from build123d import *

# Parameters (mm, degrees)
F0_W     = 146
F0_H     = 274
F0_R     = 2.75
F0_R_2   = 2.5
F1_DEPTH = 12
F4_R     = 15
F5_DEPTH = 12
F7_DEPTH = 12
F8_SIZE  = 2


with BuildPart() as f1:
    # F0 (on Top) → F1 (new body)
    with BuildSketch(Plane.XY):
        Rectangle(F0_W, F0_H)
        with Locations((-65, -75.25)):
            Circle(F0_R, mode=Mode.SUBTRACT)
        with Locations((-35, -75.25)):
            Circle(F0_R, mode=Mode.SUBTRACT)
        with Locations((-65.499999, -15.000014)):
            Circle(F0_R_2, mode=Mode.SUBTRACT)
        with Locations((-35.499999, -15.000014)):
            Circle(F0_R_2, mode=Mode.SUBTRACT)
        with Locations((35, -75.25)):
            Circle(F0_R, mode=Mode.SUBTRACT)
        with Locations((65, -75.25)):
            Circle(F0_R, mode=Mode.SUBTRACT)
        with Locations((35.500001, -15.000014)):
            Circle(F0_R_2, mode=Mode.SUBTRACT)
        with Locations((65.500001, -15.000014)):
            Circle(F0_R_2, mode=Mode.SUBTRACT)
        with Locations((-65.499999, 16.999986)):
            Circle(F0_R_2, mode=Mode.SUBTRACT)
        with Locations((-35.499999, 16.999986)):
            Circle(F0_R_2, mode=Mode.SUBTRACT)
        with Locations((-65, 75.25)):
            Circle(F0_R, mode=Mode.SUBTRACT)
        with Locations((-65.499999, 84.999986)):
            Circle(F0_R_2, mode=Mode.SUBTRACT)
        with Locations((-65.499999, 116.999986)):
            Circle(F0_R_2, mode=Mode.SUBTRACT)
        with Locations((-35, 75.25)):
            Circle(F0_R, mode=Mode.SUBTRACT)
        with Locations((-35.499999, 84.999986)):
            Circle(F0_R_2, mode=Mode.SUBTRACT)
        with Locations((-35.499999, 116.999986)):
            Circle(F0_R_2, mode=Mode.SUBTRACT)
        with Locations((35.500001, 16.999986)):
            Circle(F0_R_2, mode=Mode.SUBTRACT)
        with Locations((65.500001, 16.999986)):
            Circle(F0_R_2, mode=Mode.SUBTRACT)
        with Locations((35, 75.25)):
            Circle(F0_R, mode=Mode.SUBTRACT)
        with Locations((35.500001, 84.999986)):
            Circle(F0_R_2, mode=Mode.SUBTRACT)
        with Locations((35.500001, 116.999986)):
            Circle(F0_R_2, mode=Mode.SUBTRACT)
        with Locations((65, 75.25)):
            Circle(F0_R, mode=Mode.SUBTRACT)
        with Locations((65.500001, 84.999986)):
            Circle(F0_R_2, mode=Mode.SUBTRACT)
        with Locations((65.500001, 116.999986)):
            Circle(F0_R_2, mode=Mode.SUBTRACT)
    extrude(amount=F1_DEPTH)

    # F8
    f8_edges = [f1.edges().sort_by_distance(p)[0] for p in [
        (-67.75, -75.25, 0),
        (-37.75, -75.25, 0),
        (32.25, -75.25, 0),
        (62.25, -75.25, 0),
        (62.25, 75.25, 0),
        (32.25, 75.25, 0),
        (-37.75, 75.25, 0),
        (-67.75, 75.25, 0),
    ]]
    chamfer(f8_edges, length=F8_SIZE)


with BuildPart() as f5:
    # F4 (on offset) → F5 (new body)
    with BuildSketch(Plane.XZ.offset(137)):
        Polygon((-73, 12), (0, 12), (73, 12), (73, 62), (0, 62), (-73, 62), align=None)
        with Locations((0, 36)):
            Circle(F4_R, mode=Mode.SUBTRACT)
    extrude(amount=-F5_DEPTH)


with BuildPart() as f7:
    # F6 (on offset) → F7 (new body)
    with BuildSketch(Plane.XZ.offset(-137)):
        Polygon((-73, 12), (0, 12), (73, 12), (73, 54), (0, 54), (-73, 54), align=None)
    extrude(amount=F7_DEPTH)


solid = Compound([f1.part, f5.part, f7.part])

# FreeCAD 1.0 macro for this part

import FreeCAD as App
import Part
import Sketcher
from FreeCAD import Vector


def edges_at(feature, points):
    """Names of the edges that pass closest to the given points."""
    edges = feature.Shape.Edges
    near = lambda p: min(range(len(edges)), key=lambda i: edges[i].distToShape(Part.Vertex(*p))[0])
    return sorted({f"Edge{near(p) + 1}" for p in points})

doc = App.newDocument("Part")
params = doc.addObject("Spreadsheet::Sheet", "Params")
for row, (alias, value) in enumerate([
    ("sketch1_diameter", "5 mm"),
    ("sketch1_diameter2", "5.5 mm"),
    ("sketch1_width", "146 mm"),
    ("sketch1_height", "274 mm"),
    ("pad1_length", "12 mm"),
    ("chamfer_size", "2 mm"),
    ("sketch2_diameter", "30 mm"),
    ("sketch2_width", "146 mm"),
    ("sketch2_height", "50 mm"),
    ("pad2_length", "12 mm"),
    ("sketch3_width", "146 mm"),
    ("sketch3_height", "42 mm"),
    ("pad3_length", "12 mm"),
], start=1):
    params.set(f"A{row}", alias)
    params.set(f"B{row}", "=" + value)
    params.setAlias(f"B{row}", alias)

body = doc.addObject("PartDesign::Body", "Body")

# Sketch on XY plane
sketch1 = body.newObject("Sketcher::SketchObject", "Sketch")
sketch1.AttachmentSupport = (doc.getObject("XY_Plane"), [""])
sketch1.MapMode = "FlatFace"
sketch1.addGeometry(Part.LineSegment(Vector(-73, 137, 0), Vector(-73, -137, 0)), False)
sketch1.addGeometry(Part.LineSegment(Vector(-73, -137, 0), Vector(73, -137, 0)), False)
sketch1.addGeometry(Part.LineSegment(Vector(73, -137, 0), Vector(73, 137, 0)), False)
sketch1.addGeometry(Part.LineSegment(Vector(73, 137, 0), Vector(-73, 137, 0)), False)
sketch1.addGeometry(Part.Circle(Vector(-65, -75.2, 0), Vector(0, 0, 1), 2.8), False)
sketch1.addGeometry(Part.Circle(Vector(-35, -75.2, 0), Vector(0, 0, 1), 2.8), False)
sketch1.addGeometry(Part.Circle(Vector(-65.5, -15, 0), Vector(0, 0, 1), 2.5), False)
sketch1.addGeometry(Part.Circle(Vector(-35.5, -15, 0), Vector(0, 0, 1), 2.5), False)
sketch1.addGeometry(Part.Circle(Vector(-65.5, 17, 0), Vector(0, 0, 1), 2.5), False)
sketch1.addGeometry(Part.Circle(Vector(-35.5, 17, 0), Vector(0, 0, 1), 2.5), False)
sketch1.addGeometry(Part.Circle(Vector(35, -75.2, 0), Vector(0, 0, 1), 2.8), False)
sketch1.addGeometry(Part.Circle(Vector(65, -75.2, 0), Vector(0, 0, 1), 2.8), False)
sketch1.addGeometry(Part.Circle(Vector(35.5, -15, 0), Vector(0, 0, 1), 2.5), False)
sketch1.addGeometry(Part.Circle(Vector(65.5, -15, 0), Vector(0, 0, 1), 2.5), False)
sketch1.addGeometry(Part.Circle(Vector(35.5, 17, 0), Vector(0, 0, 1), 2.5), False)
sketch1.addGeometry(Part.Circle(Vector(65.5, 17, 0), Vector(0, 0, 1), 2.5), False)
sketch1.addGeometry(Part.Circle(Vector(-65, 75.2, 0), Vector(0, 0, 1), 2.8), False)
sketch1.addGeometry(Part.Circle(Vector(-65.5, 85, 0), Vector(0, 0, 1), 2.5), False)
sketch1.addGeometry(Part.Circle(Vector(-35, 75.2, 0), Vector(0, 0, 1), 2.8), False)
sketch1.addGeometry(Part.Circle(Vector(-35.5, 85, 0), Vector(0, 0, 1), 2.5), False)
sketch1.addGeometry(Part.Circle(Vector(-65.5, 117, 0), Vector(0, 0, 1), 2.5), False)
sketch1.addGeometry(Part.Circle(Vector(-35.5, 117, 0), Vector(0, 0, 1), 2.5), False)
sketch1.addGeometry(Part.Circle(Vector(35, 75.2, 0), Vector(0, 0, 1), 2.8), False)
sketch1.addGeometry(Part.Circle(Vector(35.5, 85, 0), Vector(0, 0, 1), 2.5), False)
sketch1.addGeometry(Part.Circle(Vector(65, 75.2, 0), Vector(0, 0, 1), 2.8), False)
sketch1.addGeometry(Part.Circle(Vector(65.5, 85, 0), Vector(0, 0, 1), 2.5), False)
sketch1.addGeometry(Part.Circle(Vector(35.5, 117, 0), Vector(0, 0, 1), 2.5), False)
sketch1.addGeometry(Part.Circle(Vector(65.5, 117, 0), Vector(0, 0, 1), 2.5), False)
sketch1.addConstraint(Sketcher.Constraint("Coincident", 0, 2, 1, 1))
sketch1.addConstraint(Sketcher.Constraint("Coincident", 1, 2, 2, 1))
sketch1.addConstraint(Sketcher.Constraint("Coincident", 2, 2, 3, 1))
sketch1.addConstraint(Sketcher.Constraint("Coincident", 3, 2, 0, 1))
sketch1.addConstraint(Sketcher.Constraint("Vertical", 0))
sketch1.addConstraint(Sketcher.Constraint("Horizontal", 1))
sketch1.addConstraint(Sketcher.Constraint("Vertical", 2))
sketch1.addConstraint(Sketcher.Constraint("Horizontal", 3))
sketch1.addConstraint(Sketcher.Constraint("Equal", 4, 5))
sketch1.addConstraint(Sketcher.Constraint("Equal", 6, 7))
sketch1.addConstraint(Sketcher.Constraint("Equal", 7, 8))
sketch1.addConstraint(Sketcher.Constraint("Equal", 8, 9))
sketch1.addConstraint(Sketcher.Constraint("Equal", 5, 10))
sketch1.addConstraint(Sketcher.Constraint("Equal", 10, 11))
sketch1.addConstraint(Sketcher.Constraint("Equal", 9, 12))
sketch1.addConstraint(Sketcher.Constraint("Equal", 12, 13))
sketch1.addConstraint(Sketcher.Constraint("Equal", 13, 14))
sketch1.addConstraint(Sketcher.Constraint("Equal", 14, 15))
sketch1.addConstraint(Sketcher.Constraint("Equal", 11, 16))
sketch1.addConstraint(Sketcher.Constraint("Equal", 15, 17))
sketch1.addConstraint(Sketcher.Constraint("Equal", 16, 18))
sketch1.addConstraint(Sketcher.Constraint("Equal", 17, 19))
sketch1.addConstraint(Sketcher.Constraint("Equal", 19, 20))
sketch1.addConstraint(Sketcher.Constraint("Equal", 20, 21))
sketch1.addConstraint(Sketcher.Constraint("Equal", 18, 22))
sketch1.addConstraint(Sketcher.Constraint("Equal", 21, 23))
sketch1.addConstraint(Sketcher.Constraint("Equal", 22, 24))
sketch1.addConstraint(Sketcher.Constraint("Equal", 23, 25))
sketch1.addConstraint(Sketcher.Constraint("Equal", 25, 26))
sketch1.addConstraint(Sketcher.Constraint("Equal", 26, 27))
sketch1.addConstraint(Sketcher.Constraint("Symmetric", 11, 3, 16, 3, -1, 1))
sketch1.addConstraint(Sketcher.Constraint("Symmetric", 10, 3, 18, 3, -1, 1))
sketch1.addConstraint(Sketcher.Constraint("Symmetric", 5, 3, 22, 3, -1, 1))
sketch1.addConstraint(Sketcher.Constraint("Symmetric", 4, 3, 24, 3, -1, 1))
sketch1.addConstraint(Sketcher.Constraint("Symmetric", 0, 2, 2, 2, -1, 1))
sketch1.addConstraint(Sketcher.Constraint("Symmetric", 5, 3, 10, 3, -2))
sketch1.addConstraint(Sketcher.Constraint("Symmetric", 4, 3, 11, 3, -2))
sketch1.addConstraint(Sketcher.Constraint("Symmetric", 7, 3, 12, 3, -2))
sketch1.addConstraint(Sketcher.Constraint("Symmetric", 6, 3, 13, 3, -2))
sketch1.addConstraint(Sketcher.Constraint("Symmetric", 9, 3, 14, 3, -2))
sketch1.addConstraint(Sketcher.Constraint("Symmetric", 8, 3, 15, 3, -2))
sketch1.addConstraint(Sketcher.Constraint("Symmetric", 19, 3, 23, 3, -2))
sketch1.addConstraint(Sketcher.Constraint("Symmetric", 17, 3, 25, 3, -2))
sketch1.addConstraint(Sketcher.Constraint("Symmetric", 21, 3, 26, 3, -2))
sketch1.addConstraint(Sketcher.Constraint("Symmetric", 20, 3, 27, 3, -2))
sketch1.addConstraint(Sketcher.Constraint("Horizontal", 4, 3, 5, 3))
sketch1.addConstraint(Sketcher.Constraint("Horizontal", 6, 3, 7, 3))
sketch1.addConstraint(Sketcher.Constraint("Horizontal", 8, 3, 9, 3))
sketch1.addConstraint(Sketcher.Constraint("Horizontal", 17, 3, 19, 3))
sketch1.addConstraint(Sketcher.Constraint("Horizontal", 20, 3, 21, 3))
sketch1.addConstraint(Sketcher.Constraint("Vertical", 6, 3, 8, 3))
sketch1.addConstraint(Sketcher.Constraint("Vertical", 7, 3, 9, 3))
sketch1.addConstraint(Sketcher.Constraint("Vertical", 8, 3, 17, 3))
sketch1.addConstraint(Sketcher.Constraint("Vertical", 9, 3, 19, 3))
sketch1.addConstraint(Sketcher.Constraint("Vertical", 17, 3, 20, 3))
sketch1.addConstraint(Sketcher.Constraint("Vertical", 19, 3, 21, 3))
sketch1.addConstraint(Sketcher.Constraint("Diameter", 6, 5.0))
sketch1.addConstraint(Sketcher.Constraint("Diameter", 4, 5.5))
sketch1.addConstraint(Sketcher.Constraint("DistanceX", 1, 1, 1, 2, 146.0))
sketch1.addConstraint(Sketcher.Constraint("DistanceY", 0, 2, 0, 1, 274.0))
sketch1.addConstraint(Sketcher.Constraint("DistanceX", 4, 3, -1, 1, 65.0))
sketch1.addConstraint(Sketcher.Constraint("DistanceX", 5, 3, -1, 1, 35.0))
sketch1.addConstraint(Sketcher.Constraint("DistanceX", 6, 3, 7, 3, 30.0))
sketch1.addConstraint(Sketcher.Constraint("DistanceY", 6, 3, 8, 3, 32.0))
sketch1.addConstraint(Sketcher.Constraint("DistanceX", 7, 3, 12, 3, 71.0))
sketch1.addConstraint(Sketcher.Constraint("DistanceY", 8, 3, 17, 3, 68.0))
sketch1.addConstraint(Sketcher.Constraint("DistanceY", 17, 3, 20, 3, 32.0))
sketch1.addConstraint(Sketcher.Constraint("DistanceY", 4, 3, -1, 1, 75.25))
sketch1.addConstraint(Sketcher.Constraint("DistanceY", 6, 3, -1, 1, 15.000014))
sketch1.setExpression("Constraints[56]", "Params.sketch1_diameter")
sketch1.setExpression("Constraints[57]", "Params.sketch1_diameter2")
sketch1.setExpression("Constraints[58]", "Params.sketch1_width")
sketch1.setExpression("Constraints[59]", "Params.sketch1_height")
pad1 = body.newObject("PartDesign::Pad", "Pad")
pad1.Profile = sketch1
pad1.setExpression("Length", "Params.pad1_length")
doc.recompute()

chamfer = body.newObject("PartDesign::Chamfer", "Chamfer")
chamfer.Base = (pad1, edges_at(pad1, [
    (-67.75, -75.25, 0),
    (-37.75, -75.25, 0),
    (32.25, -75.25, 0),
    (62.25, -75.25, 0),
    (62.25, 75.25, 0),
    (32.25, 75.25, 0),
    (-37.75, 75.25, 0),
    (-67.75, 75.25, 0),
]))
chamfer.setExpression("Size", "Params.chamfer_size")
body2 = doc.addObject("PartDesign::Body", "Body001")

# Sketch on XZ plane
sketch2 = body2.newObject("Sketcher::SketchObject", "Sketch001")
sketch2.AttachmentSupport = (doc.getObject("XZ_Plane001"), [""])
sketch2.MapMode = "FlatFace"
sketch2.AttachmentOffset = App.Placement(Vector(0, 0, 137), App.Rotation())
sketch2.addGeometry(Part.LineSegment(Vector(-73, 12, 0), Vector(73, 12, 0)), False)
sketch2.addGeometry(Part.LineSegment(Vector(73, 12, 0), Vector(73, 62, 0)), False)
sketch2.addGeometry(Part.LineSegment(Vector(73, 62, 0), Vector(-73, 62, 0)), False)
sketch2.addGeometry(Part.LineSegment(Vector(-73, 62, 0), Vector(-73, 12, 0)), False)
sketch2.addGeometry(Part.Circle(Vector(0, 36, 0), Vector(0, 0, 1), 15), False)
sketch2.addConstraint(Sketcher.Constraint("Coincident", 0, 2, 1, 1))
sketch2.addConstraint(Sketcher.Constraint("Coincident", 1, 2, 2, 1))
sketch2.addConstraint(Sketcher.Constraint("Coincident", 2, 2, 3, 1))
sketch2.addConstraint(Sketcher.Constraint("Coincident", 3, 2, 0, 1))
sketch2.addConstraint(Sketcher.Constraint("Horizontal", 0))
sketch2.addConstraint(Sketcher.Constraint("Vertical", 1))
sketch2.addConstraint(Sketcher.Constraint("Horizontal", 2))
sketch2.addConstraint(Sketcher.Constraint("Vertical", 3))
sketch2.addConstraint(Sketcher.Constraint("PointOnObject", 4, 3, -2))
sketch2.addConstraint(Sketcher.Constraint("Diameter", 4, 30.0))
sketch2.addConstraint(Sketcher.Constraint("DistanceX", 0, 1, 0, 2, 146.0))
sketch2.addConstraint(Sketcher.Constraint("DistanceY", 1, 1, 1, 2, 50.0))
sketch2.addConstraint(Sketcher.Constraint("DistanceY", -1, 1, 4, 3, 36.0))
sketch2.addConstraint(Sketcher.Constraint("DistanceX", -1, 1, 0, 2, 73.0))
sketch2.addConstraint(Sketcher.Constraint("DistanceY", -1, 1, 0, 2, 12.0))
sketch2.setExpression("Constraints[9]", "Params.sketch2_diameter")
sketch2.setExpression("Constraints[10]", "Params.sketch2_width")
sketch2.setExpression("Constraints[11]", "Params.sketch2_height")
pad2 = body2.newObject("PartDesign::Pad", "Pad001")
pad2.Profile = sketch2
pad2.setExpression("Length", "Params.pad2_length")
pad2.Reversed = True
body3 = doc.addObject("PartDesign::Body", "Body002")

# Sketch on XZ plane
sketch3 = body3.newObject("Sketcher::SketchObject", "Sketch002")
sketch3.AttachmentSupport = (doc.getObject("XZ_Plane002"), [""])
sketch3.MapMode = "FlatFace"
sketch3.AttachmentOffset = App.Placement(Vector(0, 0, -137), App.Rotation())
sketch3.addGeometry(Part.LineSegment(Vector(-73, 12, 0), Vector(73, 12, 0)), False)
sketch3.addGeometry(Part.LineSegment(Vector(73, 12, 0), Vector(73, 54, 0)), False)
sketch3.addGeometry(Part.LineSegment(Vector(73, 54, 0), Vector(-73, 54, 0)), False)
sketch3.addGeometry(Part.LineSegment(Vector(-73, 54, 0), Vector(-73, 12, 0)), False)
sketch3.addConstraint(Sketcher.Constraint("Coincident", 0, 2, 1, 1))
sketch3.addConstraint(Sketcher.Constraint("Coincident", 1, 2, 2, 1))
sketch3.addConstraint(Sketcher.Constraint("Coincident", 2, 2, 3, 1))
sketch3.addConstraint(Sketcher.Constraint("Coincident", 3, 2, 0, 1))
sketch3.addConstraint(Sketcher.Constraint("Horizontal", 0))
sketch3.addConstraint(Sketcher.Constraint("Vertical", 1))
sketch3.addConstraint(Sketcher.Constraint("Horizontal", 2))
sketch3.addConstraint(Sketcher.Constraint("Vertical", 3))
sketch3.addConstraint(Sketcher.Constraint("DistanceX", 0, 1, 0, 2, 146.0))
sketch3.addConstraint(Sketcher.Constraint("DistanceY", 1, 1, 1, 2, 42.0))
sketch3.addConstraint(Sketcher.Constraint("DistanceX", -1, 1, 0, 2, 73.0))
sketch3.addConstraint(Sketcher.Constraint("DistanceY", -1, 1, 0, 2, 12.0))
sketch3.setExpression("Constraints[8]", "Params.sketch3_width")
sketch3.setExpression("Constraints[9]", "Params.sketch3_height")
pad3 = body3.newObject("PartDesign::Pad", "Pad002")
pad3.Profile = sketch3
pad3.setExpression("Length", "Params.pad3_length")

doc.recompute()
